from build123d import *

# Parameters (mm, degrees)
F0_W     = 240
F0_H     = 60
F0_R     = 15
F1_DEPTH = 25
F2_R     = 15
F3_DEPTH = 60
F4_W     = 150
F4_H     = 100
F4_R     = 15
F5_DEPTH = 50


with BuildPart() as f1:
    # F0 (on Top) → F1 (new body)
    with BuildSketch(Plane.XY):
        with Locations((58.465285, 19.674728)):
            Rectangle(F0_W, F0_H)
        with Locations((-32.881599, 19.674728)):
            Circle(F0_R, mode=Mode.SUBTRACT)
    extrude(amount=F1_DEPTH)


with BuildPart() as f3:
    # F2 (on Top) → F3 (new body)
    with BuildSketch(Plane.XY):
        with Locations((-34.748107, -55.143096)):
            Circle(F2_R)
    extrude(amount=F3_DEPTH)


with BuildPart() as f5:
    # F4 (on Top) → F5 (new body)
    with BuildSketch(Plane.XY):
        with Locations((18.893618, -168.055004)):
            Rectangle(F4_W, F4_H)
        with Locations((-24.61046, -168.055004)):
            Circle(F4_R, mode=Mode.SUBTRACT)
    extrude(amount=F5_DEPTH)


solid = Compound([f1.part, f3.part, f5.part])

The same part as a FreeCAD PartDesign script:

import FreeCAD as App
import Part
import Sketcher
Q = App.Units.Quantity


def add_polygon(sketch, points):
    """Adds a closed chain of lines whose ends are joined by coincident constraints."""
    first, n = sketch.GeometryCount, len(points)
    for a, b in zip(points, points[1:] + points[:1]):
        sketch.addGeometry(Part.LineSegment(App.Vector(*a, 0), App.Vector(*b, 0)), False)
    for i in range(n):
        sketch.addConstraint(Sketcher.Constraint("Coincident", first + i, 2, first + (i + 1) % n, 1))

doc = App.newDocument("Part")
body = doc.addObject("PartDesign::Body", "Body")

# Sketch on XY plane
sketch1 = body.newObject("Sketcher::SketchObject", "Sketch")
sketch1.AttachmentSupport = (doc.getObject("XY_Plane"), [""])
sketch1.MapMode = "FlatFace"
add_polygon(sketch1, [(-62, 50), (-62, -10), (178, -10), (178, 50)])  # lines 0-3
sketch1.addGeometry(Part.Circle(App.Vector(-33, 20, 0), App.Vector(0, 0, 1), 15), False)  # 4
sketch1.addConstraint(Sketcher.Constraint("Vertical", 0))
sketch1.addConstraint(Sketcher.Constraint("Horizontal", 1))
sketch1.addConstraint(Sketcher.Constraint("Vertical", 2))
sketch1.addConstraint(Sketcher.Constraint("Horizontal", 3))
sketch1.addConstraint(Sketcher.Constraint("Diameter", 4, Q("30 mm")))
sketch1.addConstraint(Sketcher.Constraint("DistanceX", 1, 1, 1, 2, Q("240 mm")))
sketch1.addConstraint(Sketcher.Constraint("DistanceY", 0, 2, 0, 1, Q("60 mm")))
sketch1.addConstraint(Sketcher.Constraint("DistanceY", 0, 2, 4, 3, Q("30 mm")))
sketch1.addConstraint(Sketcher.Constraint("DistanceX", 4, 3, -1, 1, Q("32.881599 mm")))
sketch1.addConstraint(Sketcher.Constraint("DistanceY", -1, 1, 4, 3, Q("19.674728 mm")))
sketch1.addConstraint(Sketcher.Constraint("DistanceX", 0, 2, -1, 1, Q("61.534715 mm")))
pad1 = body.newObject("PartDesign::Pad", "Pad")
pad1.Profile = sketch1
pad1.Length = 25
body2 = doc.addObject("PartDesign::Body", "Body001")

# Sketch on XY plane
sketch2 = body2.newObject("Sketcher::SketchObject", "Sketch001")
sketch2.AttachmentSupport = (doc.getObject("XY_Plane001"), [""])
sketch2.MapMode = "FlatFace"
sketch2.addGeometry(Part.Circle(App.Vector(-35, -55, 0), App.Vector(0, 0, 1), 15), False)
sketch2.addConstraint(Sketcher.Constraint("Diameter", 0, Q("30 mm")))
sketch2.addConstraint(Sketcher.Constraint("DistanceX", 0, 3, -1, 1, Q("34.748107 mm")))
sketch2.addConstraint(Sketcher.Constraint("DistanceY", 0, 3, -1, 1, Q("55.143096 mm")))
pad2 = body2.newObject("PartDesign::Pad", "Pad001")
pad2.Profile = sketch2
pad2.Length = 60
body3 = doc.addObject("PartDesign::Body", "Body002")

# Sketch on XY plane
sketch3 = body3.newObject("Sketcher::SketchObject", "Sketch002")
sketch3.AttachmentSupport = (doc.getObject("XY_Plane002"), [""])
sketch3.MapMode = "FlatFace"
add_polygon(sketch3, [(-56, -118), (-56, -218), (94, -218), (94, -118)])  # lines 0-3
sketch3.addGeometry(Part.Circle(App.Vector(-25, -168, 0), App.Vector(0, 0, 1), 15), False)  # 4
sketch3.addConstraint(Sketcher.Constraint("Vertical", 0))
sketch3.addConstraint(Sketcher.Constraint("Horizontal", 1))
sketch3.addConstraint(Sketcher.Constraint("Vertical", 2))
sketch3.addConstraint(Sketcher.Constraint("Horizontal", 3))
sketch3.addConstraint(Sketcher.Constraint("Diameter", 4, Q("30 mm")))
sketch3.addConstraint(Sketcher.Constraint("DistanceX", 1, 1, 1, 2, Q("150 mm")))
sketch3.addConstraint(Sketcher.Constraint("DistanceY", 0, 2, 0, 1, Q("100 mm")))
sketch3.addConstraint(Sketcher.Constraint("DistanceY", 0, 2, 4, 3, Q("50 mm")))
sketch3.addConstraint(Sketcher.Constraint("DistanceX", 4, 3, -1, 1, Q("24.61046 mm")))
sketch3.addConstraint(Sketcher.Constraint("DistanceX", -1, 1, 1, 2, Q("93.893618 mm")))
sketch3.addConstraint(Sketcher.Constraint("DistanceY", 4, 3, -1, 1, Q("168.055004 mm")))
pad3 = body3.newObject("PartDesign::Pad", "Pad002")
pad3.Profile = sketch3
pad3.Length = 50

doc.recompute()
